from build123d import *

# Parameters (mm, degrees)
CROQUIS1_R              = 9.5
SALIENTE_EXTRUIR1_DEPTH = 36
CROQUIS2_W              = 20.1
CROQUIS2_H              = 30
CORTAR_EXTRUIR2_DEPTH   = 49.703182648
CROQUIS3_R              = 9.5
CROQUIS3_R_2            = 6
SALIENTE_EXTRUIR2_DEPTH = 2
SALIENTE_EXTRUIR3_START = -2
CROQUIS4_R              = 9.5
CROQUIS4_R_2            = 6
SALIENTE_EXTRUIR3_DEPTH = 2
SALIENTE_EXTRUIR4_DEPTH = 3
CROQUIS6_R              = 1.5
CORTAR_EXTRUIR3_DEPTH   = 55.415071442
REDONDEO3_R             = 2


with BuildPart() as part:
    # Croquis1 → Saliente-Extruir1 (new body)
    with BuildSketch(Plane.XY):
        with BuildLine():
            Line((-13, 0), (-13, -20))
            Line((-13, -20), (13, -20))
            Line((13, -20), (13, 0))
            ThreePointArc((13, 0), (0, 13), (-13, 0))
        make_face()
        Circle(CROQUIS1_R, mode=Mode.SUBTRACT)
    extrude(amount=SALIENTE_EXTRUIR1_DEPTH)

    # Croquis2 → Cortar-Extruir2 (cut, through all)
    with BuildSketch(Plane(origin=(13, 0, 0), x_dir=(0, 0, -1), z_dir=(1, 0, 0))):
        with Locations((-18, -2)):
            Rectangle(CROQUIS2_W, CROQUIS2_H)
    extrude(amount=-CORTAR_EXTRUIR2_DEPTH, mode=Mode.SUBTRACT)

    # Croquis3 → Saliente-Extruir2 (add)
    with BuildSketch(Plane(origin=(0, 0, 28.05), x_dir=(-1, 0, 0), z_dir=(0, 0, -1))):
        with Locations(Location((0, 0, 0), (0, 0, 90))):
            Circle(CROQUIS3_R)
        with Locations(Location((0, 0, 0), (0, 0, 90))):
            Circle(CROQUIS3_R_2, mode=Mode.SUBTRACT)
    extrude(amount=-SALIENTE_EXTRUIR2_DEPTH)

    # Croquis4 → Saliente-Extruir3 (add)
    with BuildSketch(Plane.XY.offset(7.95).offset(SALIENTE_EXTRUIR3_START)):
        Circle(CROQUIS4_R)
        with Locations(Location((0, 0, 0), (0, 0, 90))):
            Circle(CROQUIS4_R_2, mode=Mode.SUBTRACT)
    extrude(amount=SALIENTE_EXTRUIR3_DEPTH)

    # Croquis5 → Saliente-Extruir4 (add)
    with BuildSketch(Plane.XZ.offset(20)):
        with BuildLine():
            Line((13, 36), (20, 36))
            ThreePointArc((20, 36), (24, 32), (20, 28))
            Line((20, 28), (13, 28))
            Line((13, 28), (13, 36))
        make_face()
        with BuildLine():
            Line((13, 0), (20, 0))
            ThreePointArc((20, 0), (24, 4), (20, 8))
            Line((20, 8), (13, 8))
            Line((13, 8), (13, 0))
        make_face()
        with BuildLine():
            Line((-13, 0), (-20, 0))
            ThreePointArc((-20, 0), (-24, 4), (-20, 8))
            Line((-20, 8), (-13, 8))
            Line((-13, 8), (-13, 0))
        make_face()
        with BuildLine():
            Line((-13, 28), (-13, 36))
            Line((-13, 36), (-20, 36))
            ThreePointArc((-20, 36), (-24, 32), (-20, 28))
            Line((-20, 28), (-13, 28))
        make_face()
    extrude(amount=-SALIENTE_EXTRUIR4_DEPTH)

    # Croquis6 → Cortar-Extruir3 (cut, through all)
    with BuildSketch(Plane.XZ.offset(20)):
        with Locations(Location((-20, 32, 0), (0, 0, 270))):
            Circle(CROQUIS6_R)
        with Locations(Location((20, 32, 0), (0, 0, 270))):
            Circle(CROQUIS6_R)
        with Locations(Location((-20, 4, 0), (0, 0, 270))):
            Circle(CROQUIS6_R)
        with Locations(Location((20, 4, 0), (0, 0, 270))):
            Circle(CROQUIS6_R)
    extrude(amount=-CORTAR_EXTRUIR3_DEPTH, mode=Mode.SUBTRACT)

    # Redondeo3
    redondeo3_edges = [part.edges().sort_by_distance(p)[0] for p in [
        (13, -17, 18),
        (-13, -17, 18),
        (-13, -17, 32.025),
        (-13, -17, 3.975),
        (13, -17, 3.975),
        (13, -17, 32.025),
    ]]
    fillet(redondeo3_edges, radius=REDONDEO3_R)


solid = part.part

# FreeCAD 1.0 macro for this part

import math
import FreeCAD as App
import Part
import Sketcher

V = App.Vector


def edges_at(feature, points):
    """Names of the edges that pass closest to the given points."""
    edges = feature.Shape.Edges
    near = lambda p: min(range(len(edges)), key=lambda i: edges[i].distToShape(Part.Vertex(*p))[0])
    return sorted({f"Edge{near(p) + 1}" for p in points})


def add_polygon(sketch, points):
    """Adds a closed chain of lines whose ends are joined by coincident constraints."""
    first, n = sketch.GeometryCount, len(points)
    for a, b in zip(points, points[1:] + points[:1]):
        sketch.addGeometry(Part.LineSegment(App.Vector(*a, 0), App.Vector(*b, 0)), False)
    for i in range(n):
        sketch.addConstraint(Sketcher.Constraint("Coincident", first + i, 2, first + (i + 1) % n, 1))

doc = App.newDocument("Part")
body = doc.addObject("PartDesign::Body", "Body")

sketch1 = doc.addObject("Sketcher::SketchObject", "Sketch")
body.addObject(sketch1)
sketch1.AttachmentSupport = (doc.XY_Plane, [""])
sketch1.MapMode = "FlatFace"
sketch1.addGeometry([
    Part.LineSegment(V(-13, 0, 0), V(-13, -20, 0)),
    Part.LineSegment(V(-13, -20, 0), V(13, -20, 0)),
    Part.LineSegment(V(13, -20, 0), V(13, 0, 0)),
    Part.ArcOfCircle(Part.Circle(V(0, 0, 0), V(0, 0, 1), 13), math.radians(0), math.radians(180)),
    Part.Circle(V(0, 0, 0), V(0, 0, 1), 10),
], False)
sketch1.addConstraint([
    Sketcher.Constraint("Coincident", 0, 2, 1, 1),
    Sketcher.Constraint("Coincident", 1, 2, 2, 1),
    Sketcher.Constraint("Tangent", 2, 2, 3, 1),
    Sketcher.Constraint("Tangent", 3, 2, 0, 1),
    Sketcher.Constraint("Vertical", 0),
    Sketcher.Constraint("Horizontal", 1),
    Sketcher.Constraint("Vertical", 2),
    Sketcher.Constraint("Coincident", 3, 3, -1, 1),
    Sketcher.Constraint("Coincident", 4, 3, -1, 1),
    Sketcher.Constraint("Diameter", 4, 19.0),
    Sketcher.Constraint("Radius", 3, 13.0),
    Sketcher.Constraint("DistanceY", 0, 2, 0, 1, 20.0),
])
pad1 = doc.addObject("PartDesign::Pad", "Pad")
body.addObject(pad1)
pad1.Profile = sketch1
pad1.Length = 36

sketch2 = doc.addObject("Sketcher::SketchObject", "Sketch001")
body.addObject(sketch2)
sketch2.AttachmentSupport = (doc.YZ_Plane, [""])
sketch2.MapMode = "FlatFace"
sketch2.AttachmentOffset = App.Placement(V(0, 0, 13), App.Rotation())
add_polygon(sketch2, [(13, 28), (-17, 28), (-17, 8), (13, 8)])
sketch2.addConstraint([
    Sketcher.Constraint("Horizontal", 0),
    Sketcher.Constraint("Vertical", 1),
    Sketcher.Constraint("Horizontal", 2),
    Sketcher.Constraint("Vertical", 3),
    Sketcher.Constraint("DistanceX", 0, 2, 0, 1, 30.0),
    Sketcher.Constraint("DistanceY", 1, 2, 1, 1, 20.1),
    Sketcher.Constraint("DistanceX", 0, 2, -1, 1, 17.0),
    Sketcher.Constraint("DistanceY", -1, 1, 0, 2, 28.05),
])
pocket1 = doc.addObject("PartDesign::Pocket", "Pocket")
body.addObject(pocket1)
pocket1.Profile = sketch2
pocket1.Type = "ThroughAll"

sketch3 = doc.addObject("Sketcher::SketchObject", "Sketch002")
body.addObject(sketch3)
sketch3.AttachmentSupport = (doc.XY_Plane, [""])
sketch3.MapMode = "FlatFace"
sketch3.AttachmentOffset = App.Placement(V(0, 0, 28.05), App.Rotation())
sketch3.addGeometry([
    Part.Circle(V(0, 0, 0), V(0, 0, 1), 10),
    Part.Circle(V(0, 0, 0), V(0, 0, 1), 6),
], False)
sketch3.addConstraint([
    Sketcher.Constraint("Coincident", 0, 3, -1, 1),
    Sketcher.Constraint("Coincident", 1, 3, -1, 1),
    Sketcher.Constraint("Diameter", 0, 19.0),
    Sketcher.Constraint("Diameter", 1, 12.0),
])
pad2 = doc.addObject("PartDesign::Pad", "Pad001")
body.addObject(pad2)
pad2.Profile = sketch3
pad2.Length = 2

sketch4 = doc.addObject("Sketcher::SketchObject", "Sketch003")
body.addObject(sketch4)
sketch4.AttachmentSupport = (doc.XY_Plane, [""])
sketch4.MapMode = "FlatFace"
sketch4.AttachmentOffset = App.Placement(V(0, 0, 5.95), App.Rotation())
sketch4.addGeometry([
    Part.Circle(V(0, 0, 0), V(0, 0, 1), 10),
    Part.Circle(V(0, 0, 0), V(0, 0, 1), 6),
], False)
sketch4.addConstraint([
    Sketcher.Constraint("Coincident", 0, 3, -1, 1),
    Sketcher.Constraint("Coincident", 1, 3, -1, 1),
    Sketcher.Constraint("Diameter", 0, 19.0),
    Sketcher.Constraint("Diameter", 1, 12.0),
])
pad3 = doc.addObject("PartDesign::Pad", "Pad002")
body.addObject(pad3)
pad3.Profile = sketch4
pad3.Length = 2

sketch5 = doc.addObject("Sketcher::SketchObject", "Sketch004")
body.addObject(sketch5)
sketch5.AttachmentSupport = (doc.XZ_Plane, [""])
sketch5.MapMode = "FlatFace"
sketch5.AttachmentOffset = App.Placement(V(0, 0, 20), App.Rotation())
sketch5.addGeometry([
    Part.LineSegment(V(20, 36, 0), V(13, 36, 0)),
    Part.LineSegment(V(13, 36, 0), V(13, 28, 0)),
    Part.LineSegment(V(13, 28, 0), V(20, 28, 0)),
    Part.ArcOfCircle(Part.Circle(V(20, 32, 0), V(0, 0, 1), 4), math.radians(-90), math.radians(90)),
    Part.LineSegment(V(13, 0, 0), V(20, 0, 0)),
    Part.ArcOfCircle(Part.Circle(V(20, 4, 0), V(0, 0, 1), 4), math.radians(-90), math.radians(90)),
    Part.LineSegment(V(20, 8, 0), V(13, 8, 0)),
    Part.LineSegment(V(13, 8, 0), V(13, 0, 0)),
    Part.LineSegment(V(-20, 0, 0), V(-13, 0, 0)),
    Part.LineSegment(V(-13, 0, 0), V(-13, 8, 0)),
    Part.LineSegment(V(-13, 8, 0), V(-20, 8, 0)),
    Part.ArcOfCircle(Part.Circle(V(-20, 4, 0), V(0, 0, 1), 4), math.radians(90), math.radians(270)),
    Part.LineSegment(V(-13, 28, 0), V(-13, 36, 0)),
    Part.LineSegment(V(-13, 36, 0), V(-20, 36, 0)),
    Part.ArcOfCircle(Part.Circle(V(-20, 32, 0), V(0, 0, 1), 4), math.radians(90), math.radians(270)),
    Part.LineSegment(V(-20, 28, 0), V(-13, 28, 0)),
], False)
sketch5.addConstraint([
    Sketcher.Constraint("Coincident", 0, 2, 1, 1),
    Sketcher.Constraint("Coincident", 1, 2, 2, 1),
    Sketcher.Constraint("Tangent", 2, 2, 3, 1),
    Sketcher.Constraint("Tangent", 3, 2, 0, 1),
    Sketcher.Constraint("Tangent", 4, 2, 5, 1),
    Sketcher.Constraint("Tangent", 5, 2, 6, 1),
    Sketcher.Constraint("Coincident", 6, 2, 7, 1),
    Sketcher.Constraint("Coincident", 7, 2, 4, 1),
    Sketcher.Constraint("Coincident", 8, 2, 9, 1),
    Sketcher.Constraint("Coincident", 9, 2, 10, 1),
    Sketcher.Constraint("Tangent", 10, 2, 11, 1),
    Sketcher.Constraint("Tangent", 11, 2, 8, 1),
    Sketcher.Constraint("Coincident", 12, 2, 13, 1),
    Sketcher.Constraint("Tangent", 13, 2, 14, 1),
    Sketcher.Constraint("Tangent", 14, 2, 15, 1),
    Sketcher.Constraint("Coincident", 15, 2, 12, 1),
    Sketcher.Constraint("Horizontal", 0),
    Sketcher.Constraint("Vertical", 1),
    Sketcher.Constraint("Horizontal", 2),
    Sketcher.Constraint("Horizontal", 4),
    Sketcher.Constraint("Horizontal", 6),
    Sketcher.Constraint("Vertical", 7),
    Sketcher.Constraint("Horizontal", 8),
    Sketcher.Constraint("Vertical", 9),
    Sketcher.Constraint("Horizontal", 10),
    Sketcher.Constraint("Vertical", 12),
    Sketcher.Constraint("Horizontal", 13),
    Sketcher.Constraint("Horizontal", 15),
    Sketcher.Constraint("Equal", 3, 5),
    Sketcher.Constraint("Equal", 5, 11),
    Sketcher.Constraint("Equal", 11, 14),
    Sketcher.Constraint("Symmetric", 7, 2, 8, 2, -1, 1),
    Sketcher.Constraint("Symmetric", 5, 3, 11, 3, -2),
    Sketcher.Constraint("Symmetric", 3, 3, 14, 3, -2),
    Sketcher.Constraint("Vertical", 3, 3, 5, 3),
    Sketcher.Constraint("Vertical", 1, 2, 6, 2),
    Sketcher.Constraint("Vertical", 9, 2, 12, 2),
    Sketcher.Constraint("Radius", 3, 4.0),
    Sketcher.Constraint("DistanceX", 0, 2, 0, 1, 7.0),
    Sketcher.Constraint("DistanceX", -1, 1, 3, 3, 20.0),
    Sketcher.Constraint("DistanceY", -1, 1, 3, 3, 32.0),
])
pad4 = doc.addObject("PartDesign::Pad", "Pad003")
body.addObject(pad4)
pad4.Profile = sketch5
pad4.Length = 3
pad4.Reversed = True

sketch6 = doc.addObject("Sketcher::SketchObject", "Sketch005")
body.addObject(sketch6)
sketch6.AttachmentSupport = (doc.XZ_Plane, [""])
sketch6.MapMode = "FlatFace"
sketch6.AttachmentOffset = App.Placement(V(0, 0, 20), App.Rotation())
sketch6.addGeometry([
    Part.Circle(V(-20, 32, 0), V(0, 0, 1), 1.5),
    Part.Circle(V(20, 32, 0), V(0, 0, 1), 1.5),
    Part.Circle(V(-20, 4, 0), V(0, 0, 1), 1.5),
    Part.Circle(V(20, 4, 0), V(0, 0, 1), 1.5),
], False)
sketch6.addConstraint([
    Sketcher.Constraint("Equal", 0, 1),
    Sketcher.Constraint("Equal", 1, 2),
    Sketcher.Constraint("Equal", 2, 3),
    Sketcher.Constraint("Symmetric", 0, 3, 1, 3, -2),
    Sketcher.Constraint("Symmetric", 2, 3, 3, 3, -2),
    Sketcher.Constraint("Vertical", 0, 3, 2, 3),
    Sketcher.Constraint("Diameter", 0, 3.0),
    Sketcher.Constraint("DistanceX", 0, 3, -1, 1, 20.0),
    Sketcher.Constraint("DistanceY", -1, 1, 0, 3, 32.0),
    Sketcher.Constraint("DistanceY", -1, 1, 2, 3, 4.0),
])
pocket2 = doc.addObject("PartDesign::Pocket", "Pocket001")
body.addObject(pocket2)
pocket2.Profile = sketch6
pocket2.Type = "ThroughAll"
doc.recompute()

fillet = doc.addObject("PartDesign::Fillet", "Fillet")
body.addObject(fillet)
fillet.Base = (pocket2, edges_at(pocket2, [
    (13, -17, 18),
    (-13, -17, 18),
    (-13, -17, 32.025),
    (-13, -17, 3.975),
    (13, -17, 3.975),
    (13, -17, 32.025),
]))
fillet.Radius = 2

doc.recompute()
